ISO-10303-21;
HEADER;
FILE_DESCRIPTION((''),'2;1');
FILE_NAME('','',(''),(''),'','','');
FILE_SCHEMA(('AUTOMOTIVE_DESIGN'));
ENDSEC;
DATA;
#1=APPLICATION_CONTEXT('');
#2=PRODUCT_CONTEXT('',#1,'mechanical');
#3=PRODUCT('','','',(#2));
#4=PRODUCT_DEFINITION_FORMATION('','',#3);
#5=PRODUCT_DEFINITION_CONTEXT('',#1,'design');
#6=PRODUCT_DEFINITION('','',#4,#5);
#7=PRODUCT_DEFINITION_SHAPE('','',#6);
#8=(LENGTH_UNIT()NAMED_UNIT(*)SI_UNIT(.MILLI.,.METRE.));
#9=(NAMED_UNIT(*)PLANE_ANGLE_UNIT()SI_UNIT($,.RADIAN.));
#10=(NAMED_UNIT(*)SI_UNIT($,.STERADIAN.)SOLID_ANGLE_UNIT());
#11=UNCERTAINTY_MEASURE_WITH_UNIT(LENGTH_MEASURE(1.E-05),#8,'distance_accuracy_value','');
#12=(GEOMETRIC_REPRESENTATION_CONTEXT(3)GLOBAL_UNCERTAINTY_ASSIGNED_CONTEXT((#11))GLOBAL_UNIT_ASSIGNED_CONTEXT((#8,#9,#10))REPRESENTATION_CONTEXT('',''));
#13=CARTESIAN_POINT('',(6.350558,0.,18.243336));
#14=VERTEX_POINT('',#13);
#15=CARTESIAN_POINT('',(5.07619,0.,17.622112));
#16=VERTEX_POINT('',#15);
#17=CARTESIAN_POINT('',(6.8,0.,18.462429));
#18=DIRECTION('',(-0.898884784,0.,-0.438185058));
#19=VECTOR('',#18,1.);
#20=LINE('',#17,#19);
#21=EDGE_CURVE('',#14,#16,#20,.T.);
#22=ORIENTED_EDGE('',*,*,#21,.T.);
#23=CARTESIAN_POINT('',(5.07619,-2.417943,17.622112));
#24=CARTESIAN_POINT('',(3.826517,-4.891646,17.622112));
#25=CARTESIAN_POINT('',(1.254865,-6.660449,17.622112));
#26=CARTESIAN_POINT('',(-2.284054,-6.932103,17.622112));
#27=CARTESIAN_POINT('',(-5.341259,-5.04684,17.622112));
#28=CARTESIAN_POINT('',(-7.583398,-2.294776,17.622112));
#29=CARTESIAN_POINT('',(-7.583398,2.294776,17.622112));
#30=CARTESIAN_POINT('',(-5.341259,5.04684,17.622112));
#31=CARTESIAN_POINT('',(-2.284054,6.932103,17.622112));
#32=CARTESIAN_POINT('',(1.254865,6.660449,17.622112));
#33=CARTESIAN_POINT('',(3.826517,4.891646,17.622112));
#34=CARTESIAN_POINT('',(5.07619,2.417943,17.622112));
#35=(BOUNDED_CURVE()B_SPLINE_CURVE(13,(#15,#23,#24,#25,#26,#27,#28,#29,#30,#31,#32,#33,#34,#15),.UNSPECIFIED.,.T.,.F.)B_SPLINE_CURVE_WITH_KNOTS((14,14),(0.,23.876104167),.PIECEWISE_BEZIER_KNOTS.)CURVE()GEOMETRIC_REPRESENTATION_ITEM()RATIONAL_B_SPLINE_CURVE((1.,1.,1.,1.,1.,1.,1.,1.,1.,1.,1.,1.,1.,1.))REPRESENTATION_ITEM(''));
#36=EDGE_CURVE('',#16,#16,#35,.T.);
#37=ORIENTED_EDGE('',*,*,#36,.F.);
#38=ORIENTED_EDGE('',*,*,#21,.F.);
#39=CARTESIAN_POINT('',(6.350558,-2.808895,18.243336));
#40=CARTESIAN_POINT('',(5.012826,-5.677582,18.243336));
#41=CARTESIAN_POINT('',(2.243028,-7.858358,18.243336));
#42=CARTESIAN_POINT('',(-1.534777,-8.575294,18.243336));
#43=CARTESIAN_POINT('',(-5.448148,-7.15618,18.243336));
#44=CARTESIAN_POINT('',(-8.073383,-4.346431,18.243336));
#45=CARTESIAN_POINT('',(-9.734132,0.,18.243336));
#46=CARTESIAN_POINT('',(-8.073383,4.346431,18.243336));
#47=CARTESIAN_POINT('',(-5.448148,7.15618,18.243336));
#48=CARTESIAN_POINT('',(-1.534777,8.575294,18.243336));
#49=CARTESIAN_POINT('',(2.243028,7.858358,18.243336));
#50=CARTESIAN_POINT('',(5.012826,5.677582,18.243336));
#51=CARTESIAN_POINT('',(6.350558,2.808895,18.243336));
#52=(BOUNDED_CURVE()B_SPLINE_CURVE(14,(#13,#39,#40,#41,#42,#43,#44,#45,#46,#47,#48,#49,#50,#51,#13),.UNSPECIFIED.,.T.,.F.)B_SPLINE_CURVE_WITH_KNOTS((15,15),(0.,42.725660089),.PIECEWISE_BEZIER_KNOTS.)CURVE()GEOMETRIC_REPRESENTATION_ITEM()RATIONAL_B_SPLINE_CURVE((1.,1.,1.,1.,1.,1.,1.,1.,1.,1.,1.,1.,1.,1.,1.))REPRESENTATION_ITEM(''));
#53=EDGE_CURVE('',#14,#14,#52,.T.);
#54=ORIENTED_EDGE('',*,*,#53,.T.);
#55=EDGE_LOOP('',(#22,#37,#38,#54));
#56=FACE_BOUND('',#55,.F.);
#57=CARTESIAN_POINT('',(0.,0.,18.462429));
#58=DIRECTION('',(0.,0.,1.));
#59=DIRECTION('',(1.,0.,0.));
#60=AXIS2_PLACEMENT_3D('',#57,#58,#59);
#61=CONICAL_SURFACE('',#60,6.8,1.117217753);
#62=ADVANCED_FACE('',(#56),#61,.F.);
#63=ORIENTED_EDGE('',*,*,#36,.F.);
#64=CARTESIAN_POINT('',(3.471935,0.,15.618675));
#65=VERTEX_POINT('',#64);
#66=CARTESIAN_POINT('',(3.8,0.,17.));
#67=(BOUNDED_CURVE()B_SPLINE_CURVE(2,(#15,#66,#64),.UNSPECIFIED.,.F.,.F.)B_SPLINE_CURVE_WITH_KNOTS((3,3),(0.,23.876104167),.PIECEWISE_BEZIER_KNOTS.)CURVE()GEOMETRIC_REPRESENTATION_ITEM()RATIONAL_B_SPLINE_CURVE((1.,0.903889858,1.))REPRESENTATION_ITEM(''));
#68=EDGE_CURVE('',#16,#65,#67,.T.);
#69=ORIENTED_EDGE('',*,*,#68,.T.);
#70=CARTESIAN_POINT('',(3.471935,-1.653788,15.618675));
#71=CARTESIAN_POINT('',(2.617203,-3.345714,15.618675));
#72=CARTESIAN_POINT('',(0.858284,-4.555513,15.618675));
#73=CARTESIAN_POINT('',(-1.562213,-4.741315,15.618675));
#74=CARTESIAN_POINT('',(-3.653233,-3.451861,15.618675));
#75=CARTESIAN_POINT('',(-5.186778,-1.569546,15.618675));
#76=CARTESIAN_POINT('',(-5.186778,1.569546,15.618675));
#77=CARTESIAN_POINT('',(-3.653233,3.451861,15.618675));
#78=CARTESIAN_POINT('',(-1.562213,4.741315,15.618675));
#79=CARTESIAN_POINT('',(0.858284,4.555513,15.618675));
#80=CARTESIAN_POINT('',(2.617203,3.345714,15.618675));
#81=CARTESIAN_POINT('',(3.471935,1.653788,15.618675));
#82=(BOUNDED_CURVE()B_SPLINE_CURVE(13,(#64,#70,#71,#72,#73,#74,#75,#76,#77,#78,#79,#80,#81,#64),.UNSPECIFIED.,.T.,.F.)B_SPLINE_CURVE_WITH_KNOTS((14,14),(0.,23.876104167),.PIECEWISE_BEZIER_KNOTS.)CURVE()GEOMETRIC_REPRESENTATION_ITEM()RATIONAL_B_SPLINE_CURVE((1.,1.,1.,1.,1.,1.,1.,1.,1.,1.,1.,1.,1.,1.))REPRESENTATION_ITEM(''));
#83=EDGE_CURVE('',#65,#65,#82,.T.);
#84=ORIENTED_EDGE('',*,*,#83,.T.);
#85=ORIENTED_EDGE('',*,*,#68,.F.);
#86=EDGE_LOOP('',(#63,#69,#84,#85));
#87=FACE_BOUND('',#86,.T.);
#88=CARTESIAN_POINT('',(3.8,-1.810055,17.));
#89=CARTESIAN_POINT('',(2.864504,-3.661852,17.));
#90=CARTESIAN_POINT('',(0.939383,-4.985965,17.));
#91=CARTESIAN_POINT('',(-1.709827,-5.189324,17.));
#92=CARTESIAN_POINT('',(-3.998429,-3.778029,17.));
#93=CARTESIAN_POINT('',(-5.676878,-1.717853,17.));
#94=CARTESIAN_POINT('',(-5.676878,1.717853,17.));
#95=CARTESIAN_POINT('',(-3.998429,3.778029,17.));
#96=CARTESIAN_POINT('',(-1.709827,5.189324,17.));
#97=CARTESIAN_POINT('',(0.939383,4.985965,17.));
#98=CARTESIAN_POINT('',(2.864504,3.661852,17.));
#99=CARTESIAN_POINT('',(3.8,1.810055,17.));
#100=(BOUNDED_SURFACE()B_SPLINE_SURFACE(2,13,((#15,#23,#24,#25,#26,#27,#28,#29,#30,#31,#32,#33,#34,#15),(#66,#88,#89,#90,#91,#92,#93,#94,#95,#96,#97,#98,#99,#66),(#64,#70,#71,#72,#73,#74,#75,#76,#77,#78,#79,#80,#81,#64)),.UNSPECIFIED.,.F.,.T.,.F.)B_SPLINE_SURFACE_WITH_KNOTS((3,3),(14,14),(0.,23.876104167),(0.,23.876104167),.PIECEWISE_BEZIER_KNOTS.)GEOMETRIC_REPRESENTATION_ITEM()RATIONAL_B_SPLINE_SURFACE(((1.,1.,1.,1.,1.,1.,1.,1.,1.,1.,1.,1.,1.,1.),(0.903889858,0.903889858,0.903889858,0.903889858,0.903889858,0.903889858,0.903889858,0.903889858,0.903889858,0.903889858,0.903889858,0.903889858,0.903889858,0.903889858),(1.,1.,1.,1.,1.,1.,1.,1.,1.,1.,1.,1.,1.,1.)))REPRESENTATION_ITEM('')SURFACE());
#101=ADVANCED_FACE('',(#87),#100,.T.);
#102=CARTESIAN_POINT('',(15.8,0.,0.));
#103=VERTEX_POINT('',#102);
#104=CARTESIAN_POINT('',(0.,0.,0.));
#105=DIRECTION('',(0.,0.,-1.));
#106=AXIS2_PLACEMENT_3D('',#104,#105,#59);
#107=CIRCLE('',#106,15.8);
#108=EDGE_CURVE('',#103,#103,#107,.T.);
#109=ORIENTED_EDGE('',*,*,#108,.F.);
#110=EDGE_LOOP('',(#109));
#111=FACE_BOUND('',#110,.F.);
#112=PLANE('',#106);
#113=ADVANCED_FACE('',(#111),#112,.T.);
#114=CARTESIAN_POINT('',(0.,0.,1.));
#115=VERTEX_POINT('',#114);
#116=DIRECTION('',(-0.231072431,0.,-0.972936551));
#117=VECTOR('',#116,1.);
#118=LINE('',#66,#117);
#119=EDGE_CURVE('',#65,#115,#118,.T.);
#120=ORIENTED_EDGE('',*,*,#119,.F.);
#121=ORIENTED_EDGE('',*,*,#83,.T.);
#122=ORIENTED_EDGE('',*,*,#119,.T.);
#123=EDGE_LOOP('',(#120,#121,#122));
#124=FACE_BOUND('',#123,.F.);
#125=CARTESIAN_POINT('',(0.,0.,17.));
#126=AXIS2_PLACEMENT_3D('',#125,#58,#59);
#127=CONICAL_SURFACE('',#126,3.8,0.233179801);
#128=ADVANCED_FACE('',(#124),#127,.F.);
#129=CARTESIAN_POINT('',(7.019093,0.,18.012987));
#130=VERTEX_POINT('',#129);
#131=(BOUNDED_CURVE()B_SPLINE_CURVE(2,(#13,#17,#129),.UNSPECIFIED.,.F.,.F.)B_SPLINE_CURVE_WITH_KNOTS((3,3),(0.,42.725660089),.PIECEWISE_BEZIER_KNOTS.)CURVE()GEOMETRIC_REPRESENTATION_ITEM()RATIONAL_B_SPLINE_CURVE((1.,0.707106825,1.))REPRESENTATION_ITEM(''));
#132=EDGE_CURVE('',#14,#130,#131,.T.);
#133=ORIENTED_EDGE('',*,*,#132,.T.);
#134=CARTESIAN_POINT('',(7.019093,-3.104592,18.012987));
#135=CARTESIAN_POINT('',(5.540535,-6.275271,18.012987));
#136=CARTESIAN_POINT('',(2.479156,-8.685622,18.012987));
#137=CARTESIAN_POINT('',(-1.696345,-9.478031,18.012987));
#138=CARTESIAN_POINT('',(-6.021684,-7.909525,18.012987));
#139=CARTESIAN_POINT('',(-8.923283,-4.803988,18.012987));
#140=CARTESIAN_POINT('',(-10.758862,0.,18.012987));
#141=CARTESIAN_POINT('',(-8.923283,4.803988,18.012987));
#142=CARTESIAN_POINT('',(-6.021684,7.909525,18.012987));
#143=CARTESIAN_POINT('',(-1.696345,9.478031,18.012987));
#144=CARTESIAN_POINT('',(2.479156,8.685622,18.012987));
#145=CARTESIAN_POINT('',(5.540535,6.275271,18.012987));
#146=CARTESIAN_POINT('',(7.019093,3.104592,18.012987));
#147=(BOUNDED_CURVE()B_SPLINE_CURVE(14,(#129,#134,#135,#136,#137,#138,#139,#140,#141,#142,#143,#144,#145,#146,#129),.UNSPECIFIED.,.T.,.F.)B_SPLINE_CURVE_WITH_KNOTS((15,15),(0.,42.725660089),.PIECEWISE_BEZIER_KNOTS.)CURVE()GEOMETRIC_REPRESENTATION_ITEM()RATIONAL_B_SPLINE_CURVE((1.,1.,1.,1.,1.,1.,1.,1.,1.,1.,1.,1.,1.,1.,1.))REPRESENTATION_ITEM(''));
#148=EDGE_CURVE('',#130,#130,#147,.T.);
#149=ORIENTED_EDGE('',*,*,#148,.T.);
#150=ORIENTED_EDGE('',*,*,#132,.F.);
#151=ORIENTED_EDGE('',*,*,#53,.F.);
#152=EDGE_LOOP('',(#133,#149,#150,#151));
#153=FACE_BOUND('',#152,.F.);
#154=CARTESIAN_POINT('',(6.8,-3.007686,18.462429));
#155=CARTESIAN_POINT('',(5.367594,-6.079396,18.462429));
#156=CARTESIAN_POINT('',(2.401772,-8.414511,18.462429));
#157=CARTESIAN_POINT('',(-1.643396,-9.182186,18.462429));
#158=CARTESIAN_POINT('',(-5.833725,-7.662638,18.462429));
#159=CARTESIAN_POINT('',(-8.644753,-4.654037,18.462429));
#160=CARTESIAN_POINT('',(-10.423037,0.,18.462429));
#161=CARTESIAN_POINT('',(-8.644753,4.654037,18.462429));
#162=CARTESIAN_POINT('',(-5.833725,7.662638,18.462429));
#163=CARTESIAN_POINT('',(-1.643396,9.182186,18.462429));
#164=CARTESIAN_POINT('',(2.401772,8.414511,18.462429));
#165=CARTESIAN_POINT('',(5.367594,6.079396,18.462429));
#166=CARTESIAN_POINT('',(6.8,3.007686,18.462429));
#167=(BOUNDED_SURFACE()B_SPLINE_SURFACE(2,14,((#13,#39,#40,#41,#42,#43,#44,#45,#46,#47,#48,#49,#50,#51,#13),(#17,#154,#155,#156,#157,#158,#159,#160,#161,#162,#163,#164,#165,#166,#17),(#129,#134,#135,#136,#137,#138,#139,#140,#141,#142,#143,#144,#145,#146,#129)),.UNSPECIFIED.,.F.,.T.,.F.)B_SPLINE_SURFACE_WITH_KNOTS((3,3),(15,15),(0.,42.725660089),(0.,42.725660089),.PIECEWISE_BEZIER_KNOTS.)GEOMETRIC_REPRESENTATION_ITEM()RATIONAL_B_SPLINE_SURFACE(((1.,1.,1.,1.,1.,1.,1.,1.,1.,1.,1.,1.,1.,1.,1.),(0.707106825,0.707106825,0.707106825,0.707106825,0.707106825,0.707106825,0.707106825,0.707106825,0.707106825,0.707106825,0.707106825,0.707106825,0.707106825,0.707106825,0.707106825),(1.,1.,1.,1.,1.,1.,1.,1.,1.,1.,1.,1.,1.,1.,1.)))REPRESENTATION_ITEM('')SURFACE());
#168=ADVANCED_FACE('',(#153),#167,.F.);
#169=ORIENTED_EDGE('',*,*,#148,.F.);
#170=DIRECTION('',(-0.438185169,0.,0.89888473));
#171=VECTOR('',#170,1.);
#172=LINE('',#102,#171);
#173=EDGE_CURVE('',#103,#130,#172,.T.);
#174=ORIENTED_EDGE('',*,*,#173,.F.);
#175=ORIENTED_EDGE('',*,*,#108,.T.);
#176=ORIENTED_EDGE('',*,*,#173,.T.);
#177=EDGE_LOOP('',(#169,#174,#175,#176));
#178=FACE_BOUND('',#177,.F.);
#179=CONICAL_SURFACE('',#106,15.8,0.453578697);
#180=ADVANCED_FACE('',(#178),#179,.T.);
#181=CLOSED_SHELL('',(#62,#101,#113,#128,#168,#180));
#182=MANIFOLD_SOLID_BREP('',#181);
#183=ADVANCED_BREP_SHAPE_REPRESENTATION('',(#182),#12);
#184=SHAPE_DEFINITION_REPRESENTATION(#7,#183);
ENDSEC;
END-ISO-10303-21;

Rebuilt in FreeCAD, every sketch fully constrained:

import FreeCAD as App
import Part
import Sketcher
Q = App.Units.Quantity


def edges_at(feature, points):
    """Names of the edges that pass closest to the given points."""
    edges = feature.Shape.Edges
    near = lambda p: min(range(len(edges)), key=lambda i: edges[i].distToShape(Part.Vertex(*p))[0])
    return sorted({f"Edge{near(p) + 1}" for p in points})

doc = App.newDocument("Part")
body = doc.addObject("PartDesign::Body", "Body")

sketch1 = body.newObject("Sketcher::SketchObject", "Sketch")
sketch1.AttachmentSupport = (doc.getObject("XZ_Plane"), [""])
sketch1.MapMode = "FlatFace"
sketch1.addGeometry([
    Part.LineSegment(App.Vector(0, 1, 0), App.Vector(0, 0, 0)),
    Part.LineSegment(App.Vector(0, 0, 0), App.Vector(15.8, 0, 0)),
    Part.LineSegment(App.Vector(15.8, 0, 0), App.Vector(6.8, 18.5, 0)),
    Part.LineSegment(App.Vector(6.8, 18.5, 0), App.Vector(3.8, 17, 0)),
    Part.LineSegment(App.Vector(3.8, 17, 0), App.Vector(0, 1, 0)),
], False)
sketch1.addConstraint([
    Sketcher.Constraint("Coincident", 0, 2, 1, 1),
    Sketcher.Constraint("Coincident", 1, 2, 2, 1),
    Sketcher.Constraint("Coincident", 2, 2, 3, 1),
    Sketcher.Constraint("Coincident", 3, 2, 4, 1),
    Sketcher.Constraint("Coincident", 4, 2, 0, 1),
    Sketcher.Constraint("Vertical", 0),
    Sketcher.Constraint("Horizontal", 1),
    Sketcher.Constraint("Coincident", 0, 2, -1, 1),
    Sketcher.Constraint("Perpendicular", 2, 3),
    Sketcher.Constraint("DistanceY", 0, 2, 0, 1, Q("1 mm")),
    Sketcher.Constraint("DistanceX", 1, 1, 1, 2, Q("15.8 mm")),
    Sketcher.Constraint("DistanceY", -1, 1, 3, 2, Q("17 mm")),
    Sketcher.Constraint("DistanceX", 2, 2, 1, 2, Q("9 mm")),
    Sketcher.Constraint("DistanceX", 3, 2, 2, 2, Q("3 mm")),
])
revolution = body.newObject("PartDesign::Revolution", "Revolution")
revolution.Profile = sketch1
revolution.ReferenceAxis = (sketch1, ["V_Axis"])
revolution.Angle = 360
doc.recompute()

fillet = body.newObject("PartDesign::Fillet", "Fillet")
fillet.Base = (revolution, edges_at(revolution, [(-3.8, 0, 17), (1.9, 0, 9)]))
fillet.Radius = 3
doc.recompute()

fillet2 = body.newObject("PartDesign::Fillet", "Fillet001")
fillet2.Base = (fillet, edges_at(fillet, [(-6.8, 0, 18.462)]))
fillet2.Radius = 0.5

doc.recompute()
